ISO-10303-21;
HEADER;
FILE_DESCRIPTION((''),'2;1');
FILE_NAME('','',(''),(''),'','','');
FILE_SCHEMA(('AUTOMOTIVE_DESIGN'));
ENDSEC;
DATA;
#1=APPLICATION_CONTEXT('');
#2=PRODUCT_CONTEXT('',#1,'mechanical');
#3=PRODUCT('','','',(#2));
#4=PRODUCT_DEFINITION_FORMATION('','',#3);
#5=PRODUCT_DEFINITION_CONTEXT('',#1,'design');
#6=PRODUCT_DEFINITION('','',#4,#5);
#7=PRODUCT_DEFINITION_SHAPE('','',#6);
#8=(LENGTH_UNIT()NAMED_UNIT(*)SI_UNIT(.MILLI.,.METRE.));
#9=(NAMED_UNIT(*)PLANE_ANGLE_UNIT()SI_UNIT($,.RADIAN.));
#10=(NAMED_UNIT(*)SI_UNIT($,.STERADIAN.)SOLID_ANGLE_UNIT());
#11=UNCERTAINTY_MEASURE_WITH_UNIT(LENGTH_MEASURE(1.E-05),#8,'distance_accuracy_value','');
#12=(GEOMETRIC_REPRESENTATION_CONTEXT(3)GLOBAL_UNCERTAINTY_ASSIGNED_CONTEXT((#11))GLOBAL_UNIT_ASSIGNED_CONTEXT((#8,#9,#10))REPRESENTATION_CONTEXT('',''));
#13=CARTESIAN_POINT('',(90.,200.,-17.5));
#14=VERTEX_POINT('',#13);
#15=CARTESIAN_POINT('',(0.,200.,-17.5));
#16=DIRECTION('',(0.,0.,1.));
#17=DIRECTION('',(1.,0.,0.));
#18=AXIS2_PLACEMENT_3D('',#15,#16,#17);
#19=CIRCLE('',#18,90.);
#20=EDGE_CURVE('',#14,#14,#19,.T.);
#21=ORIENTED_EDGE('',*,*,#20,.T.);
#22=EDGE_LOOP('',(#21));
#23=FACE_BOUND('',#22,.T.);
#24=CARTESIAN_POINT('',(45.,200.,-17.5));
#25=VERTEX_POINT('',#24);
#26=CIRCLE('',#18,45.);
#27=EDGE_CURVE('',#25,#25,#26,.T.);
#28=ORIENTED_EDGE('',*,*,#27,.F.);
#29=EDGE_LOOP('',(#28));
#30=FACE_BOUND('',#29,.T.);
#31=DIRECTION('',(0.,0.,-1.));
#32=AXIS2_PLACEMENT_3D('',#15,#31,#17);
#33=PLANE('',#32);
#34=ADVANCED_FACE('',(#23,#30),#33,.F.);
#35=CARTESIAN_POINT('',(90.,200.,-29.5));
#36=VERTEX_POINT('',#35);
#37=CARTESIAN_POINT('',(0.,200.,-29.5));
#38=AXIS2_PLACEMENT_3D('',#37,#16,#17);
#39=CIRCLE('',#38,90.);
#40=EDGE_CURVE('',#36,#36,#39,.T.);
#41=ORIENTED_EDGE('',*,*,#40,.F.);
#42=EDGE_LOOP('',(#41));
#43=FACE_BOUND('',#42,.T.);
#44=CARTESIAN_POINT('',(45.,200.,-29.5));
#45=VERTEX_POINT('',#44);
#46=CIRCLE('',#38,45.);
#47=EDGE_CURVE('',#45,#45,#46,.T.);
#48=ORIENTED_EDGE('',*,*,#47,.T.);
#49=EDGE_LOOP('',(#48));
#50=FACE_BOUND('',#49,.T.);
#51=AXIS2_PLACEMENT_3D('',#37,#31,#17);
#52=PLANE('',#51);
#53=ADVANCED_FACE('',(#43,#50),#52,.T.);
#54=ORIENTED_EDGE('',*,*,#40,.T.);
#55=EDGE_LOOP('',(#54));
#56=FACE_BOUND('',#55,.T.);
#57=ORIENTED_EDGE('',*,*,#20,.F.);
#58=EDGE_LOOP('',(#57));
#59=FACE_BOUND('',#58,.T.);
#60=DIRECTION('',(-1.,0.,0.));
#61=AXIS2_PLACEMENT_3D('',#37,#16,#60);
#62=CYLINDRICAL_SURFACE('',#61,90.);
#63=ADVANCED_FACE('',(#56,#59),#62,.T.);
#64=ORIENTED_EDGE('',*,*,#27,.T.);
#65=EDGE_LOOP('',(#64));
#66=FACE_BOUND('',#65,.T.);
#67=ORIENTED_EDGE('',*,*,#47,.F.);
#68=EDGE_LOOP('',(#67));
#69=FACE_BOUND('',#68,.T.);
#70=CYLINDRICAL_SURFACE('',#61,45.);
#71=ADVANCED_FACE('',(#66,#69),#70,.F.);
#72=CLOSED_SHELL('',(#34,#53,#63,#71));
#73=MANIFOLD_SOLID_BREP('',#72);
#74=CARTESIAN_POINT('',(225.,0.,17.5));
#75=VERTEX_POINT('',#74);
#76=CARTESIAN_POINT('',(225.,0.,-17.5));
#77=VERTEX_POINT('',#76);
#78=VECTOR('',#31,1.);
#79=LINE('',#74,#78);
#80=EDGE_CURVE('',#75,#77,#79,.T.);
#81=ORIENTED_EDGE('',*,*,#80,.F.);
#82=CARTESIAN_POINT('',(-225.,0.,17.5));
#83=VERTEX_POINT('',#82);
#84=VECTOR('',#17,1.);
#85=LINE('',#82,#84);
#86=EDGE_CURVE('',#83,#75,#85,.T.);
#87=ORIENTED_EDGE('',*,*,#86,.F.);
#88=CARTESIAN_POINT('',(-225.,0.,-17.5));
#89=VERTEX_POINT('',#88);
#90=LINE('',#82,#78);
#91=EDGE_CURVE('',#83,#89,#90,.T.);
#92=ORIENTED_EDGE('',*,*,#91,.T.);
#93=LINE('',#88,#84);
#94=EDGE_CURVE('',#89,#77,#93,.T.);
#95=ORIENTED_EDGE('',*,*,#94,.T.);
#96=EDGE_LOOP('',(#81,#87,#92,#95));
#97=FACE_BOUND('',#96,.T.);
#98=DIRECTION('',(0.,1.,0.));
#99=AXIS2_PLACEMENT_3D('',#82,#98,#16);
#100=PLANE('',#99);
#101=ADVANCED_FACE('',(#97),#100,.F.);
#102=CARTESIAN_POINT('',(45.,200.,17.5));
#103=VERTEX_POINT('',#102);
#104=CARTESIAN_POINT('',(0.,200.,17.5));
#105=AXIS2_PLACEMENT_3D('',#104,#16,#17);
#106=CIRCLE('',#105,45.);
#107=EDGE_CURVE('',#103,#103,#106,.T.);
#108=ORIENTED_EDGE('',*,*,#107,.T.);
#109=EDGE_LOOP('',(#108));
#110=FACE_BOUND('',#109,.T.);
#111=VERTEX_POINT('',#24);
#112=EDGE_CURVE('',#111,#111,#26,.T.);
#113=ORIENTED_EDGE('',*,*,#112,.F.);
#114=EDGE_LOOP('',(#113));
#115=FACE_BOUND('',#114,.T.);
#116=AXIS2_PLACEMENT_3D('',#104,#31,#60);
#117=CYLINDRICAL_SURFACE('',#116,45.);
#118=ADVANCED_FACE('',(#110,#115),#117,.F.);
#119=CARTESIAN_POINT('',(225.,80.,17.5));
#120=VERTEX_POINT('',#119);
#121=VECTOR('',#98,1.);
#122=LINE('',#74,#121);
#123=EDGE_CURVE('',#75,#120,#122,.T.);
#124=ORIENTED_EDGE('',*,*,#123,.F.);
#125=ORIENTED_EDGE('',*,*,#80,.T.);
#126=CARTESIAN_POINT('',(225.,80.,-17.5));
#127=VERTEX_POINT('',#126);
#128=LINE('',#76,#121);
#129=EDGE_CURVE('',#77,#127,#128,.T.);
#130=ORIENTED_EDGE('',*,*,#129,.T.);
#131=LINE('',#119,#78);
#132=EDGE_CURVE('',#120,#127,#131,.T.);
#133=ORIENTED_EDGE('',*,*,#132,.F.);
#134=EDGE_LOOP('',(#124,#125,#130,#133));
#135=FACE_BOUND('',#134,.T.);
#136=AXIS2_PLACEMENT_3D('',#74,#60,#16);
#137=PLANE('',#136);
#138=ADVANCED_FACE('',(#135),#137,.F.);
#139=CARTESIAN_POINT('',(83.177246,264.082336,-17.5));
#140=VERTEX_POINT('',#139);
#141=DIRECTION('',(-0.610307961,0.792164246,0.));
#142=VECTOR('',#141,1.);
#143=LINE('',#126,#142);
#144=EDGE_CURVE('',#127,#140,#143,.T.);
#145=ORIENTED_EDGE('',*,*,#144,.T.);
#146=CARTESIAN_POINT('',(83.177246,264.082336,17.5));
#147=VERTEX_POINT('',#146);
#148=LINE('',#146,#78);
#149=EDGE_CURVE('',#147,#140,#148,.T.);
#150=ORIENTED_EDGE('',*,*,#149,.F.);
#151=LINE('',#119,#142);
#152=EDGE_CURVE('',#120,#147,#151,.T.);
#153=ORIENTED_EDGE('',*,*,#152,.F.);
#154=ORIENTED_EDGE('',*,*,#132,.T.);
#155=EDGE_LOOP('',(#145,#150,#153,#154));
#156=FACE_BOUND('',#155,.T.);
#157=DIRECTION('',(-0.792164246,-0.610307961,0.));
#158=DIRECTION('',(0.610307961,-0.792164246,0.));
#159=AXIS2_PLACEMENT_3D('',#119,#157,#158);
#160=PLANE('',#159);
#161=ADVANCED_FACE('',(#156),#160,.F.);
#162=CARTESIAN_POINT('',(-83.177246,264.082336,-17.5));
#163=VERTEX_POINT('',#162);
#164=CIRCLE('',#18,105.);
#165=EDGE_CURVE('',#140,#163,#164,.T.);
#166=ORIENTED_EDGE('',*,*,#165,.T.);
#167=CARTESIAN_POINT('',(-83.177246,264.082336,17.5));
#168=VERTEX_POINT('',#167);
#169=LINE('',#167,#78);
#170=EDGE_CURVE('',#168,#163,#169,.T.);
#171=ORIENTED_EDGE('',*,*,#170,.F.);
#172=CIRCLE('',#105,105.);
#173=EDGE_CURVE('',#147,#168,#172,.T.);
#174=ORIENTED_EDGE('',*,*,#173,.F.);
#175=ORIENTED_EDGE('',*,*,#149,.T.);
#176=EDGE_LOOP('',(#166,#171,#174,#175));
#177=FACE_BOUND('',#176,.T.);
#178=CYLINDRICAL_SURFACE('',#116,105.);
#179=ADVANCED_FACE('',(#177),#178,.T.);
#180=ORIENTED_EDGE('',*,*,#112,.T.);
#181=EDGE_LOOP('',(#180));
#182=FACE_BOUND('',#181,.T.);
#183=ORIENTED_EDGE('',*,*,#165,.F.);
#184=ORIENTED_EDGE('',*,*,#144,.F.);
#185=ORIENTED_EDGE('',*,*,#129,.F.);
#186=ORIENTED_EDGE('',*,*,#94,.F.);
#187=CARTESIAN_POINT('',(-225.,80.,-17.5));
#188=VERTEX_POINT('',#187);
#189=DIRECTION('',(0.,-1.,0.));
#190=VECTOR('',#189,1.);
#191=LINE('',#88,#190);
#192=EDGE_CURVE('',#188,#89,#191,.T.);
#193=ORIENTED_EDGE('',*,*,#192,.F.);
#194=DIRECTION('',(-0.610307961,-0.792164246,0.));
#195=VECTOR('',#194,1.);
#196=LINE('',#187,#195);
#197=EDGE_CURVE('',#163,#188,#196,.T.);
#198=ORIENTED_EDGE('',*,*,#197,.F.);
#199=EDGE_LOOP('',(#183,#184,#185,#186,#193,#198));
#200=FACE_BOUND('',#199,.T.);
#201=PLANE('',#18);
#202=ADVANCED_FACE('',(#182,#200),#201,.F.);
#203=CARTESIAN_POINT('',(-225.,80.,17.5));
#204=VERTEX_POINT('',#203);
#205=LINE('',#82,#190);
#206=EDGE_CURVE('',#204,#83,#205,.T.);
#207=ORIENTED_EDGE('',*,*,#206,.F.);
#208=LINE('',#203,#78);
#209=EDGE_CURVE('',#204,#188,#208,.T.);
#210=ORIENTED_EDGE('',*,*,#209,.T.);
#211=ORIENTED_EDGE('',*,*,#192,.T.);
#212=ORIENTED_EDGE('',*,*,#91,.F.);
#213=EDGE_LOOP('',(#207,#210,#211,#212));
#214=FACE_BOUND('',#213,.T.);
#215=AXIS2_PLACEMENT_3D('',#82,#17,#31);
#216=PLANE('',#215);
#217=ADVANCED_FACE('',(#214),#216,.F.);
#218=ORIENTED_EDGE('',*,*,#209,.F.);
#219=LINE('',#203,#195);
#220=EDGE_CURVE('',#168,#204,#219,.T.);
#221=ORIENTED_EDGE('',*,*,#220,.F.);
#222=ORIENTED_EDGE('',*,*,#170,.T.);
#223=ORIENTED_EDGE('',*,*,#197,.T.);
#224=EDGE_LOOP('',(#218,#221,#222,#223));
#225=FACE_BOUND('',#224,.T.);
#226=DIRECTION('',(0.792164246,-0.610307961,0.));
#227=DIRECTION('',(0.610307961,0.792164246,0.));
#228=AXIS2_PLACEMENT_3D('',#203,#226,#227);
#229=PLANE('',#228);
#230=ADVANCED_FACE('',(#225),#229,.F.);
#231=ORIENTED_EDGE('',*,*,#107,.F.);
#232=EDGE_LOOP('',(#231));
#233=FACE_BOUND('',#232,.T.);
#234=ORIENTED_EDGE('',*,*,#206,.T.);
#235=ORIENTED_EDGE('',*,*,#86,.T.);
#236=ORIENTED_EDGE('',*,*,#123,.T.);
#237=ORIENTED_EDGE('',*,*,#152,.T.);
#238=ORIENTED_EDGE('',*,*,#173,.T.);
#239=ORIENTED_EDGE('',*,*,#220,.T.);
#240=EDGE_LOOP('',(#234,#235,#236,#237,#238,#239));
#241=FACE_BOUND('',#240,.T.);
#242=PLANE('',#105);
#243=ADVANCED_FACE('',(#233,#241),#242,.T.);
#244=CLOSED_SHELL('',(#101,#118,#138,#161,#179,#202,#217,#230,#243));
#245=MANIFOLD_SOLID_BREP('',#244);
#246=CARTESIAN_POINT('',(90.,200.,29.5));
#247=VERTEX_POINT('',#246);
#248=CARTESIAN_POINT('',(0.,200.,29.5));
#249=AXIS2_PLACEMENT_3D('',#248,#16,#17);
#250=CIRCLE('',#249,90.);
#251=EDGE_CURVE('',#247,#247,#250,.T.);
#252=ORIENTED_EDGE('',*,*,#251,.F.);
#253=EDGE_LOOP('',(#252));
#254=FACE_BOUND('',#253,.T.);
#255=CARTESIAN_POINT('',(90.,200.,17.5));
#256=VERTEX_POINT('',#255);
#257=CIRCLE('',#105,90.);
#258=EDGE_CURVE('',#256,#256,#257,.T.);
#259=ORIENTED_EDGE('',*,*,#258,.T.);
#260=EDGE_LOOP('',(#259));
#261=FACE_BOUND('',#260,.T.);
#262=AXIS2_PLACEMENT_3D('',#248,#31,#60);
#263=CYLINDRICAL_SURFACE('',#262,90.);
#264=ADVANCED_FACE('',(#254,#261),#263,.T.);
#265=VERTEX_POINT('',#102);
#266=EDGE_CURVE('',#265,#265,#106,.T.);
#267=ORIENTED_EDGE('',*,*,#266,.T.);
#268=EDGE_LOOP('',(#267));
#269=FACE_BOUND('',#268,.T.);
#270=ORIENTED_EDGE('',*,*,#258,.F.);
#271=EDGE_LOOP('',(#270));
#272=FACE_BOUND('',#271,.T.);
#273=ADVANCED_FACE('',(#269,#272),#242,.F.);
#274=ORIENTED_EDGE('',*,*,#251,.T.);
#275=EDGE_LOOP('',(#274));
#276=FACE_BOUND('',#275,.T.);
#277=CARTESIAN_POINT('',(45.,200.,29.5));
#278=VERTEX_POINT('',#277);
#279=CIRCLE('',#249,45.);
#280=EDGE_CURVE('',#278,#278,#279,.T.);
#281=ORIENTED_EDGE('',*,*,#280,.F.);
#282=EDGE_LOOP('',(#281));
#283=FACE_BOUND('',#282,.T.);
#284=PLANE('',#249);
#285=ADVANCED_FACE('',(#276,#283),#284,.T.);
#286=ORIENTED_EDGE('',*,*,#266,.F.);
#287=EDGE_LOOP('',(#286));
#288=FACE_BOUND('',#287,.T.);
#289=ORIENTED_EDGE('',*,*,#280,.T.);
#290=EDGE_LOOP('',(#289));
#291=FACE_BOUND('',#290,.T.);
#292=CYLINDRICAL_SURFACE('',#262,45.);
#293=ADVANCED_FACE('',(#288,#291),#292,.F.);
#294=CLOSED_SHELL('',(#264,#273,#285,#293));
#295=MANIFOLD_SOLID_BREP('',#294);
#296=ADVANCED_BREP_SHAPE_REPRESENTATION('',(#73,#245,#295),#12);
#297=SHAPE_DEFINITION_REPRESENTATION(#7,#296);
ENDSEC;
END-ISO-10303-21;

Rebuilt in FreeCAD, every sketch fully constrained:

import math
import FreeCAD as App
import Part
import Sketcher

V = App.Vector
Q = App.Units.Quantity

doc = App.newDocument("Part")
body = doc.addObject("PartDesign::Body", "Body")

sketch1 = doc.addObject("Sketcher::SketchObject", "Sketch")
body.addObject(sketch1)
sketch1.AttachmentSupport = (doc.XY_Plane, [""])
sketch1.MapMode = "FlatFace"
sketch1.addGeometry([
    Part.LineSegment(V(-225, 0, 0), V(225, 0, 0)),
    Part.LineSegment(V(225, 0, 0), V(225, 80, 0)),
    Part.LineSegment(V(225, 80, 0), V(83, 264, 0)),
    Part.ArcOfCircle(Part.Circle(V(0, 200, 0), V(0, 0, 1), 105), math.radians(38), math.radians(142)),
    Part.LineSegment(V(-83, 264, 0), V(-225, 80, 0)),
    Part.LineSegment(V(-225, 80, 0), V(-225, 0, 0)),
    Part.Circle(V(0, 200, 0), V(0, 0, 1), 45),
], False)
sketch1.addConstraint([
    Sketcher.Constraint("Coincident", 0, 2, 1, 1),
    Sketcher.Constraint("Coincident", 1, 2, 2, 1),
    Sketcher.Constraint("Tangent", 2, 2, 3, 1),
    Sketcher.Constraint("Tangent", 3, 2, 4, 1),
    Sketcher.Constraint("Coincident", 4, 2, 5, 1),
    Sketcher.Constraint("Coincident", 5, 2, 0, 1),
    Sketcher.Constraint("Horizontal", 0),
    Sketcher.Constraint("Vertical", 1),
    Sketcher.Constraint("Vertical", 5),
    Sketcher.Constraint("Coincident", 6, 3, 3, 3),
    Sketcher.Constraint("Symmetric", 0, 2, 5, 2, -1, 1),
    Sketcher.Constraint("Symmetric", 2, 2, 3, 2, -2),
    Sketcher.Constraint("Diameter", 6, Q("90 mm")),
    Sketcher.Constraint("Radius", 3, Q("105 mm")),
    Sketcher.Constraint("DistanceX", 0, 1, 0, 2, Q("450 mm")),
    Sketcher.Constraint("DistanceY", 1, 1, 1, 2, Q("80 mm")),
    Sketcher.Constraint("DistanceY", -1, 1, 3, 3, Q("200 mm")),
])
pad1 = doc.addObject("PartDesign::Pad", "Pad")
body.addObject(pad1)
pad1.Profile = sketch1
pad1.Length = 35
pad1.Midplane = True
body2 = doc.addObject("PartDesign::Body", "Body001")

sketch2 = doc.addObject("Sketcher::SketchObject", "Sketch001")
body2.addObject(sketch2)
sketch2.AttachmentSupport = (doc.getObject("XY_Plane001"), [""])
sketch2.MapMode = "FlatFace"
sketch2.AttachmentOffset = App.Placement(V(0, 0, 17.5), App.Rotation())
sketch2.addGeometry([
    Part.Circle(V(0, 200, 0), V(0, 0, 1), 90),
    Part.Circle(V(0, 200, 0), V(0, 0, 1), 45),
], False)
sketch2.addConstraint([
    Sketcher.Constraint("Coincident", 1, 3, 0, 3),
    Sketcher.Constraint("PointOnObject", 0, 3, -2),
    Sketcher.Constraint("Diameter", 0, Q("180 mm")),
    Sketcher.Constraint("Diameter", 1, Q("90 mm")),
    Sketcher.Constraint("DistanceY", -1, 1, 0, 3, Q("200 mm")),
])
pad2 = doc.addObject("PartDesign::Pad", "Pad001")
body2.addObject(pad2)
pad2.Profile = sketch2
pad2.Length = 12
body3 = doc.addObject("PartDesign::Body", "Body002")
doc.recompute()

mirroring = doc.addObject("Part::Mirroring", "Mirroring")
mirroring.Source = body2
mirroring.Base = V(0, 0, 0)
mirroring.Normal = V(0, 0, 1)
body3.BaseFeature = mirroring
doc.recompute()
mirroring.Visibility = False

doc.recompute()
